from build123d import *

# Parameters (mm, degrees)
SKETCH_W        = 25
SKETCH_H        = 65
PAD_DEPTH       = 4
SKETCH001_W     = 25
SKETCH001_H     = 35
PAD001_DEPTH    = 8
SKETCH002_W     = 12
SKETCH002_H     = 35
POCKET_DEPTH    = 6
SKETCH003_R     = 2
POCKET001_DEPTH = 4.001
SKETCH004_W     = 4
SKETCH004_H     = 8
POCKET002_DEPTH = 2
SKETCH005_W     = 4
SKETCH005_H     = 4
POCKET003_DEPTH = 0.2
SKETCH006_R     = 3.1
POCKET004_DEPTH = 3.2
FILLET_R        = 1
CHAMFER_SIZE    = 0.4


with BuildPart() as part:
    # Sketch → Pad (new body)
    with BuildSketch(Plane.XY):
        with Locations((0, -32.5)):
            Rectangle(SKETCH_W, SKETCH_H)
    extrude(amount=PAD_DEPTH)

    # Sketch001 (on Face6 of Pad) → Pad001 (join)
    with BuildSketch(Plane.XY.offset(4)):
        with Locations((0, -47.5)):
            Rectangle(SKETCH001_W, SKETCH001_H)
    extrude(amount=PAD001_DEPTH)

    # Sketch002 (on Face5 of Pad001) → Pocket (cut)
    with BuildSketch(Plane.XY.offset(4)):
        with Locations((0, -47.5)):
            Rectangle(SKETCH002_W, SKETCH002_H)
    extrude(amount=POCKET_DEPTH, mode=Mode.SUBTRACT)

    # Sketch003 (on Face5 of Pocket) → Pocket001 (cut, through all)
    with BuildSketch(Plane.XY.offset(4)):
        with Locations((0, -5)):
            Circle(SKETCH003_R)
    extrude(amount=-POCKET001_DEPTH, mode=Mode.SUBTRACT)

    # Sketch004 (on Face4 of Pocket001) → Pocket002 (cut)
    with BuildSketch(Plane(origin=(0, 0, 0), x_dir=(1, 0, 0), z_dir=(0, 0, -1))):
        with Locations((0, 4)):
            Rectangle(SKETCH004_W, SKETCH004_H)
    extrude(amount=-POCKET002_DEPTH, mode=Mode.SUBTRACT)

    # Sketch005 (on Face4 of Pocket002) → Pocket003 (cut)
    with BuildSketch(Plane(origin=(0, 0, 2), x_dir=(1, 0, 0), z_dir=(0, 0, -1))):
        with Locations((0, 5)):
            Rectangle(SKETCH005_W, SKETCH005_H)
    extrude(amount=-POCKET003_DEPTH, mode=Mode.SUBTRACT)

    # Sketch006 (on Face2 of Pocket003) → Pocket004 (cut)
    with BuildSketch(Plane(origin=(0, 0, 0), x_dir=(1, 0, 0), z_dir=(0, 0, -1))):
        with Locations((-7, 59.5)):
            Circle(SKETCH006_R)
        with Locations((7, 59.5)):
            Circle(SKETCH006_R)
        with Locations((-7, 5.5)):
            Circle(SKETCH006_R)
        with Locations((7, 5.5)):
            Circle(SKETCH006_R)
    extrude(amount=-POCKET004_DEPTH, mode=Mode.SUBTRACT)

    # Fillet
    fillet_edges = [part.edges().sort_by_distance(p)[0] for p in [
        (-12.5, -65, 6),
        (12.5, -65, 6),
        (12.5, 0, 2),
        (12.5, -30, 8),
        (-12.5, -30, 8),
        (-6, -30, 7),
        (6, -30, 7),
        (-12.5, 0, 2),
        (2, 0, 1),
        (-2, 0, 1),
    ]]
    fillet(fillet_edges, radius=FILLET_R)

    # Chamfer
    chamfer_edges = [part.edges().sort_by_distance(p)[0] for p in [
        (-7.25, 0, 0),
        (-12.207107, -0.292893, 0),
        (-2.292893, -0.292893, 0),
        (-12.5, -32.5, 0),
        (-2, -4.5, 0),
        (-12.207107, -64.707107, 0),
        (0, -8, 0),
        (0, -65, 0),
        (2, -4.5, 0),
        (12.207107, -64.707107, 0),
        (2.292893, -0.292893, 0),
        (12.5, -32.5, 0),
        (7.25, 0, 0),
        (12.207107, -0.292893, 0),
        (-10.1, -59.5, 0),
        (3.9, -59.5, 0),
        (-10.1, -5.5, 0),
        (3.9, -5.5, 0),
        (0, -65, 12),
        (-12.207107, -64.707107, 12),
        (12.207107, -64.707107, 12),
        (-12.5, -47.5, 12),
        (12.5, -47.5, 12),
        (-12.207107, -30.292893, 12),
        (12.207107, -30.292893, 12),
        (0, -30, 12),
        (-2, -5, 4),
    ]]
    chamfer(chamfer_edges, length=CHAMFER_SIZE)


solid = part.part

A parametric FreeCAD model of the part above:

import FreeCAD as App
import Part
import Sketcher
from FreeCAD import Vector


def edges_at(feature, points):
    """Names of the edges that pass closest to the given points."""
    edges = feature.Shape.Edges
    near = lambda p: min(range(len(edges)), key=lambda i: edges[i].distToShape(Part.Vertex(*p))[0])
    return sorted({f"Edge{near(p) + 1}" for p in points})

doc = App.newDocument("Part")
body = doc.addObject("PartDesign::Body", "Body")

sketch1 = doc.addObject("Sketcher::SketchObject", "Sketch")
body.addObject(sketch1)
sketch1.AttachmentSupport = (doc.XY_Plane, [""])
sketch1.MapMode = "FlatFace"
sketch1.addGeometry(Part.LineSegment(Vector(-12, 0, 0), Vector(-12, -65, 0)), False)
sketch1.addGeometry(Part.LineSegment(Vector(-12, -65, 0), Vector(12, -65, 0)), False)
sketch1.addGeometry(Part.LineSegment(Vector(12, -65, 0), Vector(12, 0, 0)), False)
sketch1.addGeometry(Part.LineSegment(Vector(12, 0, 0), Vector(-12, 0, 0)), False)
sketch1.addConstraint(Sketcher.Constraint("Coincident", 0, 2, 1, 1))
sketch1.addConstraint(Sketcher.Constraint("Coincident", 1, 2, 2, 1))
sketch1.addConstraint(Sketcher.Constraint("Coincident", 2, 2, 3, 1))
sketch1.addConstraint(Sketcher.Constraint("Coincident", 3, 2, 0, 1))
sketch1.addConstraint(Sketcher.Constraint("Vertical", 0))
sketch1.addConstraint(Sketcher.Constraint("Horizontal", 1))
sketch1.addConstraint(Sketcher.Constraint("Vertical", 2))
sketch1.addConstraint(Sketcher.Constraint("Horizontal", 3))
sketch1.addConstraint(Sketcher.Constraint("Symmetric", 2, 2, 3, 2, -1, 1))
sketch1.addConstraint(Sketcher.Constraint("DistanceX", 1, 1, 1, 2, 25.0))
sketch1.addConstraint(Sketcher.Constraint("DistanceY", 0, 2, 0, 1, 65.0))
pad1 = doc.addObject("PartDesign::Pad", "Pad")
body.addObject(pad1)
pad1.Profile = sketch1
pad1.Length = 4

sketch2 = doc.addObject("Sketcher::SketchObject", "Sketch001")
body.addObject(sketch2)
sketch2.AttachmentSupport = (doc.XY_Plane, [""])
sketch2.MapMode = "FlatFace"
sketch2.AttachmentOffset = App.Placement(Vector(0, 0, 4), App.Rotation())
sketch2.addGeometry(Part.LineSegment(Vector(-12, -30, 0), Vector(-12, -65, 0)), False)
sketch2.addGeometry(Part.LineSegment(Vector(-12, -65, 0), Vector(12, -65, 0)), False)
sketch2.addGeometry(Part.LineSegment(Vector(12, -65, 0), Vector(12, -30, 0)), False)
sketch2.addGeometry(Part.LineSegment(Vector(12, -30, 0), Vector(-12, -30, 0)), False)
sketch2.addConstraint(Sketcher.Constraint("Coincident", 0, 2, 1, 1))
sketch2.addConstraint(Sketcher.Constraint("Coincident", 1, 2, 2, 1))
sketch2.addConstraint(Sketcher.Constraint("Coincident", 2, 2, 3, 1))
sketch2.addConstraint(Sketcher.Constraint("Coincident", 3, 2, 0, 1))
sketch2.addConstraint(Sketcher.Constraint("Vertical", 0))
sketch2.addConstraint(Sketcher.Constraint("Horizontal", 1))
sketch2.addConstraint(Sketcher.Constraint("Vertical", 2))
sketch2.addConstraint(Sketcher.Constraint("Horizontal", 3))
sketch2.addConstraint(Sketcher.Constraint("DistanceX", 1, 1, 1, 2, 25.0))
sketch2.addConstraint(Sketcher.Constraint("DistanceY", 0, 2, 0, 1, 35.0))
sketch2.addConstraint(Sketcher.Constraint("DistanceY", 0, 2, -1, 1, 65.0))
sketch2.addConstraint(Sketcher.Constraint("DistanceX", 0, 2, -1, 1, 12.5))
pad2 = doc.addObject("PartDesign::Pad", "Pad001")
body.addObject(pad2)
pad2.Profile = sketch2
pad2.Length = 8

sketch3 = doc.addObject("Sketcher::SketchObject", "Sketch002")
body.addObject(sketch3)
sketch3.AttachmentSupport = (doc.XY_Plane, [""])
sketch3.MapMode = "FlatFace"
sketch3.AttachmentOffset = App.Placement(Vector(0, 0, 4), App.Rotation())
sketch3.addGeometry(Part.LineSegment(Vector(-6, -30, 0), Vector(-6, -65, 0)), False)
sketch3.addGeometry(Part.LineSegment(Vector(-6, -65, 0), Vector(6, -65, 0)), False)
sketch3.addGeometry(Part.LineSegment(Vector(6, -65, 0), Vector(6, -30, 0)), False)
sketch3.addGeometry(Part.LineSegment(Vector(6, -30, 0), Vector(-6, -30, 0)), False)
sketch3.addConstraint(Sketcher.Constraint("Coincident", 0, 2, 1, 1))
sketch3.addConstraint(Sketcher.Constraint("Coincident", 1, 2, 2, 1))
sketch3.addConstraint(Sketcher.Constraint("Coincident", 2, 2, 3, 1))
sketch3.addConstraint(Sketcher.Constraint("Coincident", 3, 2, 0, 1))
sketch3.addConstraint(Sketcher.Constraint("Vertical", 0))
sketch3.addConstraint(Sketcher.Constraint("Horizontal", 1))
sketch3.addConstraint(Sketcher.Constraint("Vertical", 2))
sketch3.addConstraint(Sketcher.Constraint("Horizontal", 3))
sketch3.addConstraint(Sketcher.Constraint("DistanceX", 1, 1, 1, 2, 12.0))
sketch3.addConstraint(Sketcher.Constraint("DistanceY", 0, 2, 0, 1, 35.0))
sketch3.addConstraint(Sketcher.Constraint("DistanceX", 0, 2, -1, 1, 6.0))
sketch3.addConstraint(Sketcher.Constraint("DistanceY", 0, 2, -1, 1, 65.0))
pocket1 = doc.addObject("PartDesign::Pocket", "Pocket")
body.addObject(pocket1)
pocket1.Profile = sketch3
pocket1.Length = 6
pocket1.Reversed = True

sketch4 = doc.addObject("Sketcher::SketchObject", "Sketch003")
body.addObject(sketch4)
sketch4.AttachmentSupport = (doc.XY_Plane, [""])
sketch4.MapMode = "FlatFace"
sketch4.AttachmentOffset = App.Placement(Vector(0, 0, 4), App.Rotation())
sketch4.addGeometry(Part.Circle(Vector(0, -5, 0), Vector(0, 0, 1), 2), False)
sketch4.addConstraint(Sketcher.Constraint("PointOnObject", 0, 3, -2))
sketch4.addConstraint(Sketcher.Constraint("Diameter", 0, 4.0))
sketch4.addConstraint(Sketcher.Constraint("DistanceY", 0, 3, -1, 1, 5.0))
pocket2 = doc.addObject("PartDesign::Pocket", "Pocket001")
body.addObject(pocket2)
pocket2.Profile = sketch4
pocket2.Type = "ThroughAll"

sketch5 = doc.addObject("Sketcher::SketchObject", "Sketch004")
body.addObject(sketch5)
sketch5.AttachmentSupport = (doc.XY_Plane, [""])
sketch5.MapMode = "FlatFace"
sketch5.addGeometry(Part.LineSegment(Vector(-2, -8, 0), Vector(-2, 0, 0)), False)
sketch5.addGeometry(Part.LineSegment(Vector(-2, 0, 0), Vector(2, 0, 0)), False)
sketch5.addGeometry(Part.LineSegment(Vector(2, 0, 0), Vector(2, -8, 0)), False)
sketch5.addGeometry(Part.LineSegment(Vector(2, -8, 0), Vector(-2, -8, 0)), False)
sketch5.addConstraint(Sketcher.Constraint("Coincident", 0, 2, 1, 1))
sketch5.addConstraint(Sketcher.Constraint("Coincident", 1, 2, 2, 1))
sketch5.addConstraint(Sketcher.Constraint("Coincident", 2, 2, 3, 1))
sketch5.addConstraint(Sketcher.Constraint("Coincident", 3, 2, 0, 1))
sketch5.addConstraint(Sketcher.Constraint("Vertical", 0))
sketch5.addConstraint(Sketcher.Constraint("Horizontal", 1))
sketch5.addConstraint(Sketcher.Constraint("Vertical", 2))
sketch5.addConstraint(Sketcher.Constraint("Horizontal", 3))
sketch5.addConstraint(Sketcher.Constraint("Symmetric", 0, 2, 1, 2, -1, 1))
sketch5.addConstraint(Sketcher.Constraint("DistanceX", 1, 1, 1, 2, 4.0))
sketch5.addConstraint(Sketcher.Constraint("DistanceY", 0, 1, 0, 2, 8.0))
pocket3 = doc.addObject("PartDesign::Pocket", "Pocket002")
body.addObject(pocket3)
pocket3.Profile = sketch5
pocket3.Length = 2
pocket3.Reversed = True

sketch6 = doc.addObject("Sketcher::SketchObject", "Sketch005")
body.addObject(sketch6)
sketch6.AttachmentSupport = (doc.XY_Plane, [""])
sketch6.MapMode = "FlatFace"
sketch6.AttachmentOffset = App.Placement(Vector(0, 0, 2), App.Rotation())
sketch6.addGeometry(Part.LineSegment(Vector(-2, -7, 0), Vector(-2, -3, 0)), False)
sketch6.addGeometry(Part.LineSegment(Vector(-2, -3, 0), Vector(2, -3, 0)), False)
sketch6.addGeometry(Part.LineSegment(Vector(2, -3, 0), Vector(2, -7, 0)), False)
sketch6.addGeometry(Part.LineSegment(Vector(2, -7, 0), Vector(-2, -7, 0)), False)
sketch6.addConstraint(Sketcher.Constraint("Coincident", 0, 2, 1, 1))
sketch6.addConstraint(Sketcher.Constraint("Coincident", 1, 2, 2, 1))
sketch6.addConstraint(Sketcher.Constraint("Coincident", 2, 2, 3, 1))
sketch6.addConstraint(Sketcher.Constraint("Coincident", 3, 2, 0, 1))
sketch6.addConstraint(Sketcher.Constraint("Vertical", 0))
sketch6.addConstraint(Sketcher.Constraint("Horizontal", 1))
sketch6.addConstraint(Sketcher.Constraint("Vertical", 2))
sketch6.addConstraint(Sketcher.Constraint("Horizontal", 3))
sketch6.addConstraint(Sketcher.Constraint("Equal", 3, 0))
sketch6.addConstraint(Sketcher.Constraint("DistanceX", 1, 1, 1, 2, 4.0))
sketch6.addConstraint(Sketcher.Constraint("DistanceX", 0, 2, -1, 1, 2.0))
sketch6.addConstraint(Sketcher.Constraint("DistanceY", 0, 2, -1, 1, 3.0))
pocket4 = doc.addObject("PartDesign::Pocket", "Pocket003")
body.addObject(pocket4)
pocket4.Profile = sketch6
pocket4.Length = 0.2
pocket4.Reversed = True

sketch7 = doc.addObject("Sketcher::SketchObject", "Sketch006")
body.addObject(sketch7)
sketch7.AttachmentSupport = (doc.XY_Plane, [""])
sketch7.MapMode = "FlatFace"
sketch7.addGeometry(Part.Circle(Vector(-7, -59.5, 0), Vector(0, 0, 1), 3.1), False)
sketch7.addGeometry(Part.Circle(Vector(7, -59.5, 0), Vector(0, 0, 1), 3.1), False)
sketch7.addGeometry(Part.Circle(Vector(-7, -5.5, 0), Vector(0, 0, 1), 3.1), False)
sketch7.addGeometry(Part.Circle(Vector(7, -5.5, 0), Vector(0, 0, 1), 3.1), False)
sketch7.addConstraint(Sketcher.Constraint("Equal", 0, 1))
sketch7.addConstraint(Sketcher.Constraint("Equal", 1, 2))
sketch7.addConstraint(Sketcher.Constraint("Equal", 2, 3))
sketch7.addConstraint(Sketcher.Constraint("Symmetric", 0, 3, 1, 3, -2))
sketch7.addConstraint(Sketcher.Constraint("Symmetric", 2, 3, 3, 3, -2))
sketch7.addConstraint(Sketcher.Constraint("Vertical", 0, 3, 2, 3))
sketch7.addConstraint(Sketcher.Constraint("Diameter", 0, 6.2))
sketch7.addConstraint(Sketcher.Constraint("DistanceX", 0, 3, -1, 1, 7.0))
sketch7.addConstraint(Sketcher.Constraint("DistanceY", 0, 3, 2, 3, 54.0))
sketch7.addConstraint(Sketcher.Constraint("DistanceY", 0, 3, -1, 1, 59.5))
pocket5 = doc.addObject("PartDesign::Pocket", "Pocket004")
body.addObject(pocket5)
pocket5.Profile = sketch7
pocket5.Length = 3.2
pocket5.Reversed = True
doc.recompute()

fillet = doc.addObject("PartDesign::Fillet", "Fillet")
body.addObject(fillet)
fillet.Base = (pocket5, edges_at(pocket5, [
    (-12.5, -65, 6),
    (12.5, -65, 6),
    (12.5, 0, 2),
    (12.5, -30, 8),
    (-12.5, -30, 8),
    (-6, -30, 7),
    (6, -30, 7),
    (-12.5, 0, 2),
    (2, 0, 1),
    (-2, 0, 1),
]))
fillet.Radius = 1
doc.recompute()

chamfer = doc.addObject("PartDesign::Chamfer", "Chamfer")
body.addObject(chamfer)
chamfer.Base = (fillet, edges_at(fillet, [
    (-7.25, 0, 0),
    (-12.207, -0.293, 0),
    (-2.293, -0.293, 0),
    (-12.5, -32.5, 0),
    (-2, -4.5, 0),
    (-12.207, -64.707, 0),
    (0, -8, 0),
    (0, -65, 0),
    (2, -4.5, 0),
    (12.207, -64.707, 0),
    (2.293, -0.293, 0),
    (12.5, -32.5, 0),
    (7.25, 0, 0),
    (12.207, -0.293, 0),
    (-10.1, -59.5, 0),
    (3.9, -59.5, 0),
    (-10.1, -5.5, 0),
    (3.9, -5.5, 0),
    (0, -65, 12),
    (-12.207, -64.707, 12),
    (12.207, -64.707, 12),
    (-12.5, -47.5, 12),
    (12.5, -47.5, 12),
    (-12.207, -30.293, 12),
    (12.207, -30.293, 12),
    (0, -30, 12),
    (-2, -5, 4),
]))
chamfer.Size = 0.4

doc.recompute()
